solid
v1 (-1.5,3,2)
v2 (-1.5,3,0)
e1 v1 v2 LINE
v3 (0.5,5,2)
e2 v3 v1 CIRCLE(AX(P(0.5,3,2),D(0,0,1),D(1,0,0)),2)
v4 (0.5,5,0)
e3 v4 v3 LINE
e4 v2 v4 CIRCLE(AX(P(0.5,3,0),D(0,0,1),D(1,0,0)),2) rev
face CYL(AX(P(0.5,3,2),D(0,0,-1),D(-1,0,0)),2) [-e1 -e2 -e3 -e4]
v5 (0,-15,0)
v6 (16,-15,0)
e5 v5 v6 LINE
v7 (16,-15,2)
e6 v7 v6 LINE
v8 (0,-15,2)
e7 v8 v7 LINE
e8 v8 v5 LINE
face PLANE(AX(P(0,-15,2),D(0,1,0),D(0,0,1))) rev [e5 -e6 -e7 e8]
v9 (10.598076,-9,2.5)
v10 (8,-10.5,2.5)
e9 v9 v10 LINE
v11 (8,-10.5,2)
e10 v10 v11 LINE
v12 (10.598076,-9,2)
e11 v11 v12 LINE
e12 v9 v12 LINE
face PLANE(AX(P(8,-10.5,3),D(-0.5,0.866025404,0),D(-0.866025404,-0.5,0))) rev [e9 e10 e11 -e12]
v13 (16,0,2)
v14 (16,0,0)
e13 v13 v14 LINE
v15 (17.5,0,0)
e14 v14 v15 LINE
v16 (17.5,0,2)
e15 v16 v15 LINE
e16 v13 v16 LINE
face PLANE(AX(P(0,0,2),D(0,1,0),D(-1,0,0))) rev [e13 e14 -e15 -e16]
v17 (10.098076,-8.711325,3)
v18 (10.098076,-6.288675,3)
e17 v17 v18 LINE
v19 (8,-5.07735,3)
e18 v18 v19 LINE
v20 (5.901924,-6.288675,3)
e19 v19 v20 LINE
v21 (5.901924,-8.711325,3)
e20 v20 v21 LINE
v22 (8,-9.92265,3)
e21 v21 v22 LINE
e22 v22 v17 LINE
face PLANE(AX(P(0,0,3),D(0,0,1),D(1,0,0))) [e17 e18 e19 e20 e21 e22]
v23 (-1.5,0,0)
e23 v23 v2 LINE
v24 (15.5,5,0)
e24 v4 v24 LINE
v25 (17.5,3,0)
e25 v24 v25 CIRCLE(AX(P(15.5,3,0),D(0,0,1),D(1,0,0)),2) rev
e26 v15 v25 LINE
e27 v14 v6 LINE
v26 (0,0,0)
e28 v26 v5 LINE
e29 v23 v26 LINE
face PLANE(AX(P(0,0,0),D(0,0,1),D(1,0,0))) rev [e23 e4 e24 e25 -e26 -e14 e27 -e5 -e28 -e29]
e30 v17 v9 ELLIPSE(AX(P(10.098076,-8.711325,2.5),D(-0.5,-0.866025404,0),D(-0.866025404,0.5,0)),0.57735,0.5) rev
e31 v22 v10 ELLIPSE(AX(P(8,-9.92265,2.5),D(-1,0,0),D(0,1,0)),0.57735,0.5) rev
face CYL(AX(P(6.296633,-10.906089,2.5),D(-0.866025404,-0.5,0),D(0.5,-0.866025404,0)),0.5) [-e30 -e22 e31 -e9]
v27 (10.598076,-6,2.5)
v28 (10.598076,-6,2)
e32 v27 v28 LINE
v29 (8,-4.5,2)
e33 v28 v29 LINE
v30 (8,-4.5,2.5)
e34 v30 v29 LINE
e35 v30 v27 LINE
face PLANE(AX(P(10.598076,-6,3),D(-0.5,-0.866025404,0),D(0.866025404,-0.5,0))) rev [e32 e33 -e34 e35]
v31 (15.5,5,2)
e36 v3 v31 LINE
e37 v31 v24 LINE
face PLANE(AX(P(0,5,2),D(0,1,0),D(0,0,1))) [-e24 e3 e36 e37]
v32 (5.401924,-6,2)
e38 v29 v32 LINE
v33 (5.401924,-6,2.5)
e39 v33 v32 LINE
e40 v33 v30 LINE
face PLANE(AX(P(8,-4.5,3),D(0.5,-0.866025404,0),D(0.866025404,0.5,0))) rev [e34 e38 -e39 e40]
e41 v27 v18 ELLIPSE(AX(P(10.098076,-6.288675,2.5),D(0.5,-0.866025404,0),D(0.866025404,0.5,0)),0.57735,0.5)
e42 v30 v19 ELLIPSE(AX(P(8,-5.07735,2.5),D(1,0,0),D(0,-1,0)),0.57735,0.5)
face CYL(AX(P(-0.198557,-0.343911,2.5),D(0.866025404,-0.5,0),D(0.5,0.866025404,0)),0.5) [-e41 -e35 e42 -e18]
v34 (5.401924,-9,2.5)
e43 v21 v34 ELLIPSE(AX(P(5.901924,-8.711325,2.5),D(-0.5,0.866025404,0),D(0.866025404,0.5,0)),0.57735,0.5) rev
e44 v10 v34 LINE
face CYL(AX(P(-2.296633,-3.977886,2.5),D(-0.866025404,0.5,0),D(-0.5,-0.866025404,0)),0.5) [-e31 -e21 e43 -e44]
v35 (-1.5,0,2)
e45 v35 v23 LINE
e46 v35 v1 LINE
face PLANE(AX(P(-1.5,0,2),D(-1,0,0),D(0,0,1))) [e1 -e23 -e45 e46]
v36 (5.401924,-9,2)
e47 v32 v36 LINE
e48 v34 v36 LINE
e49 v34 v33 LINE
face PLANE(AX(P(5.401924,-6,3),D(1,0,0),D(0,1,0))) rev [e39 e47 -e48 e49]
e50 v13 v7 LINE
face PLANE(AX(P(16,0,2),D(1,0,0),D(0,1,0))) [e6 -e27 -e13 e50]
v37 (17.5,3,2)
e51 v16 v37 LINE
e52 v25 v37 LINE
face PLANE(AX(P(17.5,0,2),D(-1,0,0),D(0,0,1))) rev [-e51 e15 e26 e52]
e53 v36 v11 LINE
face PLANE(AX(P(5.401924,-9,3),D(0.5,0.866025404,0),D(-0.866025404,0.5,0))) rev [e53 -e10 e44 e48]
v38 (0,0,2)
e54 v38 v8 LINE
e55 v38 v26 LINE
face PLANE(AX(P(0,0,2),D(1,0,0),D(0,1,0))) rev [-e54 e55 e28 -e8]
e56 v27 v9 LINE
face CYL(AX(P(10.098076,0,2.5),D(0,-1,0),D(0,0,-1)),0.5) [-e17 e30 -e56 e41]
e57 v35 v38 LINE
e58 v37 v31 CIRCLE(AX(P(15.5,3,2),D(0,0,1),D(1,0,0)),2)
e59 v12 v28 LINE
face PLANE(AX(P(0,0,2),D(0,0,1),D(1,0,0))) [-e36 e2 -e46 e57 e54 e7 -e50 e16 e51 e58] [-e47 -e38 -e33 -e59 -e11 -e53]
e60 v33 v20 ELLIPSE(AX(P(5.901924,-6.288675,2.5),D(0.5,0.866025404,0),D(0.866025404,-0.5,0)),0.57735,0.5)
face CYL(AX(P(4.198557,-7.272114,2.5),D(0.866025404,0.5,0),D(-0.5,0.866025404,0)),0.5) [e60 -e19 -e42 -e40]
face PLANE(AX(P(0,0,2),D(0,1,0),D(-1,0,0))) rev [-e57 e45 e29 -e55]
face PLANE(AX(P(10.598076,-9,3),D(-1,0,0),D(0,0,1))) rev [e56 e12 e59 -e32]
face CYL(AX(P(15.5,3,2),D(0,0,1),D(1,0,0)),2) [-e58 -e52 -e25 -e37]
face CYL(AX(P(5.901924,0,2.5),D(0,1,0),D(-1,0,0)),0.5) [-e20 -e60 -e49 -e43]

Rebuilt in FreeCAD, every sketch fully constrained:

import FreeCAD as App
import Part
import Sketcher
from FreeCAD import Vector
Q = App.Units.Quantity


def edges_at(feature, points):
    """Names of the edges that pass closest to the given points."""
    edges = feature.Shape.Edges
    near = lambda p: min(range(len(edges)), key=lambda i: edges[i].distToShape(Part.Vertex(*p))[0])
    return sorted({f"Edge{near(p) + 1}" for p in points})


def add_polygon(sketch, points):
    """Adds a closed chain of lines whose ends are joined by coincident constraints."""
    first, n = sketch.GeometryCount, len(points)
    for a, b in zip(points, points[1:] + points[:1]):
        sketch.addGeometry(Part.LineSegment(App.Vector(*a, 0), App.Vector(*b, 0)), False)
    for i in range(n):
        sketch.addConstraint(Sketcher.Constraint("Coincident", first + i, 2, first + (i + 1) % n, 1))

doc = App.newDocument("Part")
body = doc.addObject("PartDesign::Body", "Body")

# Sketch on XY plane
sketch1 = body.newObject("Sketcher::SketchObject", "Sketch")
sketch1.AttachmentSupport = (doc.getObject("XY_Plane"), [""])
sketch1.MapMode = "FlatFace"
add_polygon(sketch1, [(-1.5, 0), (0, 0), (0, -15), (16, -15), (16, 0), (17.5, 0), (17.5, 5), (-1.5, 5)])  # lines 0-7
sketch1.addConstraint([
    Sketcher.Constraint("Horizontal", 0),
    Sketcher.Constraint("Vertical", 1),
    Sketcher.Constraint("Horizontal", 2),
    Sketcher.Constraint("Vertical", 3),
    Sketcher.Constraint("Horizontal", 4),
    Sketcher.Constraint("Vertical", 5),
    Sketcher.Constraint("Horizontal", 6),
    Sketcher.Constraint("Vertical", 7),
    Sketcher.Constraint("Coincident", 0, 2, -1, 1),
    Sketcher.Constraint("PointOnObject", 3, 2, -1),
    Sketcher.Constraint("Equal", 0, 4),
    Sketcher.Constraint("DistanceX", 2, 1, 2, 2, 16.0),
    Sketcher.Constraint("DistanceX", 6, 2, 6, 1, 19.0),
    Sketcher.Constraint("DistanceY", 1, 2, 1, 1, 15.0),
    Sketcher.Constraint("DistanceY", 5, 1, 5, 2, 5.0),
])
pad1 = body.newObject("PartDesign::Pad", "Pad")
pad1.Profile = sketch1
pad1.Length = 2
doc.recompute()

fillet = body.newObject("PartDesign::Fillet", "Fillet")
fillet.Base = (pad1, edges_at(pad1, [(-1.5, 5, 1), (17.5, 5, 1)]))
fillet.Radius = 2

# Sketch on XY plane
sketch2 = body.newObject("Sketcher::SketchObject", "Sketch001")
sketch2.AttachmentSupport = (doc.getObject("XY_Plane"), [""])
sketch2.MapMode = "FlatFace"
sketch2.AttachmentOffset = App.Placement(Vector(0, 0, 2), App.Rotation())
add_polygon(sketch2, [(8, -4.5), (5.401924, -6), (5.401924, -9), (8, -10.5), (10.598076, -9), (10.598076, -6)])  # lines 0-5
sketch2.addConstraint([
    Sketcher.Constraint("Vertical", 1),
    Sketcher.Constraint("Vertical", 4),
    Sketcher.Constraint("Parallel", 0, 3),
    Sketcher.Constraint("Parallel", 2, 5),
    Sketcher.Constraint("Horizontal", 1, 2, 3, 2),
    Sketcher.Constraint("Horizontal", 0, 2, 4, 2),
    Sketcher.Constraint("Vertical", 2, 2, 5, 2),
    Sketcher.Constraint("DistanceY", 1, 2, 1, 1, 3.0),
    Sketcher.Constraint("Angle", 0, Q("-150 deg")),
    Sketcher.Constraint("Distance", 0, 3.0),
    Sketcher.Constraint("DistanceY", 0, 2, -1, 1, 6.0),
    Sketcher.Constraint("DistanceX", -1, 1, 2, 2, 8.0),
])
pad2 = body.newObject("PartDesign::Pad", "Pad001")
pad2.Profile = sketch2
pad2.Length = 1
doc.recompute()

fillet2 = body.newObject("PartDesign::Fillet", "Fillet001")
fillet2.Base = (pad2, edges_at(pad2, [
    (9.299, -5.25, 3),
    (6.701, -5.25, 3),
    (5.402, -7.5, 3),
    (6.701, -9.75, 3),
    (9.299, -9.75, 3),
    (10.598, -7.5, 3),
]))
fillet2.Radius = 0.5

doc.recompute()
